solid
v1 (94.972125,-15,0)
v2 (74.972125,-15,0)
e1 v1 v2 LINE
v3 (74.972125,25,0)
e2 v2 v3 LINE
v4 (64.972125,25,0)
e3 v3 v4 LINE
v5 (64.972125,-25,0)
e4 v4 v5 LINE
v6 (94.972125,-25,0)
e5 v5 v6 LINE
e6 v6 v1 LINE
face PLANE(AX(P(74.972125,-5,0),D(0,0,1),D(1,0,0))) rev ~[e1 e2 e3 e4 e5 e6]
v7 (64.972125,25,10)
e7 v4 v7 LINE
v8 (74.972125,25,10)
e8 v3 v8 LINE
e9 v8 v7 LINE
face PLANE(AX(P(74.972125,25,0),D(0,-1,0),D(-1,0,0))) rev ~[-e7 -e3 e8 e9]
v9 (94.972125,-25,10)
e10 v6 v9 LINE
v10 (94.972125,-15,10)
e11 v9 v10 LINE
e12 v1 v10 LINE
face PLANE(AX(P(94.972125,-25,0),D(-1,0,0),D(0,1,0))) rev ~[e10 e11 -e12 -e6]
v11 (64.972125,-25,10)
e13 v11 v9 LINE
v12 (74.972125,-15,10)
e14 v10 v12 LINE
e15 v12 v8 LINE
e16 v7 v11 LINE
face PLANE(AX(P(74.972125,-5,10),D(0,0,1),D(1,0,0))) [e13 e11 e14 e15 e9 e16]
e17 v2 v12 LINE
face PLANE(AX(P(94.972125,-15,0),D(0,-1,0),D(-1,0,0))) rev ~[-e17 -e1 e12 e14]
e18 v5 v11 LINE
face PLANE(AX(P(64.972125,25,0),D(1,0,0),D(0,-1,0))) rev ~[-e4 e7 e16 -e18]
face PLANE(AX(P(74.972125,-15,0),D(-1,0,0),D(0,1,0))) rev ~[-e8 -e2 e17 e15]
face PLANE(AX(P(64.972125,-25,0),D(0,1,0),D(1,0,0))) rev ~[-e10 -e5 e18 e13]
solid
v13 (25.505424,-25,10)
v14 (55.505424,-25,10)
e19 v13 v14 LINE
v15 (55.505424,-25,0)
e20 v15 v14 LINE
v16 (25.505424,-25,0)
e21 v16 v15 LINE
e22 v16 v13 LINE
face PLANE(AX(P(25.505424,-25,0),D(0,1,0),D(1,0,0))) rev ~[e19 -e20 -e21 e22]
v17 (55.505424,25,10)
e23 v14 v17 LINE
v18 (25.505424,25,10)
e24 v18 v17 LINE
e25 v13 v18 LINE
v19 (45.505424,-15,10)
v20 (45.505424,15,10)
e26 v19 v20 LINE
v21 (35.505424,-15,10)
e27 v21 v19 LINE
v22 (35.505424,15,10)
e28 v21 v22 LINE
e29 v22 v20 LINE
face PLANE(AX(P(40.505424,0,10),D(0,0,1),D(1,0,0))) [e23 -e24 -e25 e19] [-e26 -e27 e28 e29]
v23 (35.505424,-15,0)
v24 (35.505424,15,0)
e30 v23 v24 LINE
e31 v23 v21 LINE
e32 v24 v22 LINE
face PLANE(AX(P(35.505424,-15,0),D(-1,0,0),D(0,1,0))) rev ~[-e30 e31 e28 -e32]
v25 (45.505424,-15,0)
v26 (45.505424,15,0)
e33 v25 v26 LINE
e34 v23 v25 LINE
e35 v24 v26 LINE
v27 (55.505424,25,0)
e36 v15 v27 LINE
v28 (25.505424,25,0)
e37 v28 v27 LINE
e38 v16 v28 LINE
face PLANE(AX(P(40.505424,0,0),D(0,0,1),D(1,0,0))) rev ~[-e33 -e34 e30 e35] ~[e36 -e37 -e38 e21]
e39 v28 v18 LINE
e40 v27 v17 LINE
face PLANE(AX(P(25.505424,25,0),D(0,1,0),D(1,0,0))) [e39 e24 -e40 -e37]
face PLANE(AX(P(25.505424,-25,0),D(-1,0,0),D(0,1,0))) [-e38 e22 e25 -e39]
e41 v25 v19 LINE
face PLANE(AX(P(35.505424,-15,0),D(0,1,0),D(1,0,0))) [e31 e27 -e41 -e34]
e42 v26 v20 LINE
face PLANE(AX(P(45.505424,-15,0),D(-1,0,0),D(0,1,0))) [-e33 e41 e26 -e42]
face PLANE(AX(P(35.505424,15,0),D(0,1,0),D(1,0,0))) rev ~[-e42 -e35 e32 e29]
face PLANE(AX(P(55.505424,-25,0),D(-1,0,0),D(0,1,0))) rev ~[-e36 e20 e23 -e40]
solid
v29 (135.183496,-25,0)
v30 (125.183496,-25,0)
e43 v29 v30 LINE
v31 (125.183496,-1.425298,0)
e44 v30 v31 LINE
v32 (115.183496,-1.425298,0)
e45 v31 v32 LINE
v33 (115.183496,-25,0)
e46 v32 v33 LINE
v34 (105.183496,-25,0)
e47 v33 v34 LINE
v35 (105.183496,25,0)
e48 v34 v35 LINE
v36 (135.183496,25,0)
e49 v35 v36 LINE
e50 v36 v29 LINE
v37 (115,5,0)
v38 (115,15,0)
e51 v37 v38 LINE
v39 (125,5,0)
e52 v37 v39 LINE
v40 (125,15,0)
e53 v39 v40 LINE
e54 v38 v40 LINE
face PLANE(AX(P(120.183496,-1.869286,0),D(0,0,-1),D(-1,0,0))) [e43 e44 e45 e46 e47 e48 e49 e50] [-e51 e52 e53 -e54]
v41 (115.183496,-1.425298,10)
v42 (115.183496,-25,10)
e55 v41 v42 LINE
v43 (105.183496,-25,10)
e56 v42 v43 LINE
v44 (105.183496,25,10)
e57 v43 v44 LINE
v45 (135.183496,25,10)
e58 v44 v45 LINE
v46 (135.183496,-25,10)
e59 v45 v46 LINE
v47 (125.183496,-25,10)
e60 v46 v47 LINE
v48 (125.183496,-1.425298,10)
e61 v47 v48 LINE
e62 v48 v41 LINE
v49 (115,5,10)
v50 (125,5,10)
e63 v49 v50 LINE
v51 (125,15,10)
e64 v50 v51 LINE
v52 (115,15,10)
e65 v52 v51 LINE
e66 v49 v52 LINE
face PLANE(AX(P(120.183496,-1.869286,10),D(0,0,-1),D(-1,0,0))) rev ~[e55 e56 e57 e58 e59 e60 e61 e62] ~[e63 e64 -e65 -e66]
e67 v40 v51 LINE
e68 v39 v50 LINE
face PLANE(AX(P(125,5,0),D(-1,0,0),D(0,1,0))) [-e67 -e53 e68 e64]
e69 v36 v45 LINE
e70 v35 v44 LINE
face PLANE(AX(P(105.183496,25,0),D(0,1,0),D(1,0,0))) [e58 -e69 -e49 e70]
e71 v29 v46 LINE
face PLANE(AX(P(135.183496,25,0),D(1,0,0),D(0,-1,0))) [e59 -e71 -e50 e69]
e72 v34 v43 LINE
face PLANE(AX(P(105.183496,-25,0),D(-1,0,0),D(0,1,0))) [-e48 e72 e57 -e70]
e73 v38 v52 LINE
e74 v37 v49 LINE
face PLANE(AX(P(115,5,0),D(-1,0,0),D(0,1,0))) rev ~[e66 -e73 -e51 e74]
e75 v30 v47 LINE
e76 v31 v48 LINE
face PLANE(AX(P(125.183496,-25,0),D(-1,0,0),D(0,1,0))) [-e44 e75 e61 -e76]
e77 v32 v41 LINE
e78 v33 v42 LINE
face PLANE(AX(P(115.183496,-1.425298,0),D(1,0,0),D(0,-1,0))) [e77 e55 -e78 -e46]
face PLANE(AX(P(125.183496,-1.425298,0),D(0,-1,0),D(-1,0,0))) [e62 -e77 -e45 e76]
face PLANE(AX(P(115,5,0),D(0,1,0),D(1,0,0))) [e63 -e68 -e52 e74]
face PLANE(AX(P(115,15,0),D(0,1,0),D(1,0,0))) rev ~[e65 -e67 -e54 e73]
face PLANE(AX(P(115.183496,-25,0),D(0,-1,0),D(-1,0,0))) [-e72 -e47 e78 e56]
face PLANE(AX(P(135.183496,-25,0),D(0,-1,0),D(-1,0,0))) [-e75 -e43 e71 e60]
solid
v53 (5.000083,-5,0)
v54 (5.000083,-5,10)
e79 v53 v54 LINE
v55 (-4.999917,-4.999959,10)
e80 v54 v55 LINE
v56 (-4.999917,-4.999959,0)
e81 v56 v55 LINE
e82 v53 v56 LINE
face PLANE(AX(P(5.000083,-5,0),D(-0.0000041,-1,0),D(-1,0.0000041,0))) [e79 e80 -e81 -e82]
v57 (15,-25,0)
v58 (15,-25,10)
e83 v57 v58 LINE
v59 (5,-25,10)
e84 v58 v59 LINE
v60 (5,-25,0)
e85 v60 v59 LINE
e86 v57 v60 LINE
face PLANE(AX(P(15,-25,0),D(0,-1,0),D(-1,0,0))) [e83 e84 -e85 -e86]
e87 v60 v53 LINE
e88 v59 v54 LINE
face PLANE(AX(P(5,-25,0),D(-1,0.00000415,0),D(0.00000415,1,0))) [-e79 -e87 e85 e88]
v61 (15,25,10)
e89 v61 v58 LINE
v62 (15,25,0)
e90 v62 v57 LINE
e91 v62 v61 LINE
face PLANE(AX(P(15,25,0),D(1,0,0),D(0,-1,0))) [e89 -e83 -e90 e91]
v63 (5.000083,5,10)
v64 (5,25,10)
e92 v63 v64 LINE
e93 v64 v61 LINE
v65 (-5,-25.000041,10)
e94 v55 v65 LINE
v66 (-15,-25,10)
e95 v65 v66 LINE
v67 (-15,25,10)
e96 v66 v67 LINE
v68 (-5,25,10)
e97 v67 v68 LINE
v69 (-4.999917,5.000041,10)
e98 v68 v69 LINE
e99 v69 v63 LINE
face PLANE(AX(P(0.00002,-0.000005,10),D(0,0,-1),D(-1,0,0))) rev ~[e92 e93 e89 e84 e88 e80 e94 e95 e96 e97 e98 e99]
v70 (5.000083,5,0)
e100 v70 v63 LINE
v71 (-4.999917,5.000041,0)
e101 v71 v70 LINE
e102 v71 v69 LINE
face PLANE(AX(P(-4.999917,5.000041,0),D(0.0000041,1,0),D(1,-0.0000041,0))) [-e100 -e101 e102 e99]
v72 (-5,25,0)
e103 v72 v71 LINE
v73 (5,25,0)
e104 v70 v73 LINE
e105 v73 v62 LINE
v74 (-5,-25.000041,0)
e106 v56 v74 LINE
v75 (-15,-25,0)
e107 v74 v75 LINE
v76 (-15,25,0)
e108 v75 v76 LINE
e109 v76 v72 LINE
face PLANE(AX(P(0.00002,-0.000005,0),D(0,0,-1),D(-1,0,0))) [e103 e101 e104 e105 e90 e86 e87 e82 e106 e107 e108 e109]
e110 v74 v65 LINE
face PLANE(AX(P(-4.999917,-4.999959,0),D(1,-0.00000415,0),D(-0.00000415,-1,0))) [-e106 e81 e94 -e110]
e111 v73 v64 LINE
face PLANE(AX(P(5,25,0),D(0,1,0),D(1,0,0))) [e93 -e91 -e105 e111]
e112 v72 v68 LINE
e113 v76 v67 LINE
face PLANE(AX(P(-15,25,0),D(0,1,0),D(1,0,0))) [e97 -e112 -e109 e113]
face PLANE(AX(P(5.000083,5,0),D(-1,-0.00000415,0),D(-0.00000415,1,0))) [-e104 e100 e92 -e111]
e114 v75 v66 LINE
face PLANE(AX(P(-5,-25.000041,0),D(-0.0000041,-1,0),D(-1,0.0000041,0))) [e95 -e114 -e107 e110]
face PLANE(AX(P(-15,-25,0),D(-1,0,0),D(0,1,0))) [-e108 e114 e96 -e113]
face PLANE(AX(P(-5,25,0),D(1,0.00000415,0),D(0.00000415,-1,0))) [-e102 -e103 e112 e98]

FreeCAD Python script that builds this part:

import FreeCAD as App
import Part
import Sketcher

V = App.Vector
Q = App.Units.Quantity

doc = App.newDocument("Part")
body = doc.addObject("PartDesign::Body", "Body")

# Sketch on XY plane
sketch1 = doc.addObject("Sketcher::SketchObject", "Sketch")
body.addObject(sketch1)
sketch1.AttachmentSupport = (doc.XY_Plane, [""])
sketch1.MapMode = "FlatFace"
sketch1.addGeometry(Part.LineSegment(V(-5, 25, 0), V(-15, 25, 0)), False)
sketch1.addGeometry(Part.LineSegment(V(-15, 25, 0), V(-15, -25, 0)), False)
sketch1.addGeometry(Part.LineSegment(V(-15, -25, 0), V(-5, -25, 0)), False)
sketch1.addGeometry(Part.LineSegment(V(-5, -25, 0), V(-5, -5, 0)), False)
sketch1.addGeometry(Part.LineSegment(V(-5, -5, 0), V(5, -5, 0)), False)
sketch1.addGeometry(Part.LineSegment(V(5, -5, 0), V(5, -25, 0)), False)
sketch1.addGeometry(Part.LineSegment(V(5, -25, 0), V(15, -25, 0)), False)
sketch1.addGeometry(Part.LineSegment(V(15, -25, 0), V(15, 25, 0)), False)
sketch1.addGeometry(Part.LineSegment(V(15, 25, 0), V(5, 25, 0)), False)
sketch1.addGeometry(Part.LineSegment(V(5, 25, 0), V(5, 5, 0)), False)
sketch1.addGeometry(Part.LineSegment(V(5, 5, 0), V(-5, 5, 0)), False)
sketch1.addGeometry(Part.LineSegment(V(-5, 5, 0), V(-5, 25, 0)), False)
sketch1.addConstraint(Sketcher.Constraint("Coincident", 0, 2, 1, 1))
sketch1.addConstraint(Sketcher.Constraint("Coincident", 1, 2, 2, 1))
sketch1.addConstraint(Sketcher.Constraint("Coincident", 2, 2, 3, 1))
sketch1.addConstraint(Sketcher.Constraint("Coincident", 3, 2, 4, 1))
sketch1.addConstraint(Sketcher.Constraint("Coincident", 4, 2, 5, 1))
sketch1.addConstraint(Sketcher.Constraint("Coincident", 5, 2, 6, 1))
sketch1.addConstraint(Sketcher.Constraint("Coincident", 6, 2, 7, 1))
sketch1.addConstraint(Sketcher.Constraint("Coincident", 7, 2, 8, 1))
sketch1.addConstraint(Sketcher.Constraint("Coincident", 8, 2, 9, 1))
sketch1.addConstraint(Sketcher.Constraint("Coincident", 9, 2, 10, 1))
sketch1.addConstraint(Sketcher.Constraint("Coincident", 10, 2, 11, 1))
sketch1.addConstraint(Sketcher.Constraint("Coincident", 11, 2, 0, 1))
sketch1.addConstraint(Sketcher.Constraint("Horizontal", 0))
sketch1.addConstraint(Sketcher.Constraint("Vertical", 1))
sketch1.addConstraint(Sketcher.Constraint("Horizontal", 6))
sketch1.addConstraint(Sketcher.Constraint("Vertical", 7))
sketch1.addConstraint(Sketcher.Constraint("Horizontal", 8))
sketch1.addConstraint(Sketcher.Constraint("Symmetric", 0, 2, 6, 2, -1, 1))
sketch1.addConstraint(Sketcher.Constraint("Symmetric", 8, 2, 11, 2, -2))
sketch1.addConstraint(Sketcher.Constraint("Symmetric", 4, 2, 9, 2, -1))
sketch1.addConstraint(Sketcher.Constraint("Perpendicular", 2, 3))
sketch1.addConstraint(Sketcher.Constraint("Perpendicular", 3, 4))
sketch1.addConstraint(Sketcher.Constraint("Perpendicular", 4, 5))
sketch1.addConstraint(Sketcher.Constraint("Perpendicular", 5, 10))
sketch1.addConstraint(Sketcher.Constraint("Parallel", 9, 11))
sketch1.addConstraint(Sketcher.Constraint("Horizontal", 1, 2, 5, 2))
sketch1.addConstraint(Sketcher.Constraint("Vertical", 5, 2, 8, 2))
sketch1.addConstraint(Sketcher.Constraint("Vertical", 3, 2, 10, 2))
sketch1.addConstraint(Sketcher.Constraint("Equal", 2, 4))
sketch1.addConstraint(Sketcher.Constraint("DistanceX", 0, 2, 0, 1, Q("10 mm")))
sketch1.addConstraint(Sketcher.Constraint("DistanceY", 1, 2, 1, 1, Q("50 mm")))
sketch1.addConstraint(Sketcher.Constraint("Distance", 5, Q("20 mm")))
sketch1.addConstraint(Sketcher.Constraint("Distance", 11, Q("19.999959 mm")))
pad1 = doc.addObject("PartDesign::Pad", "Pad")
body.addObject(pad1)
pad1.Profile = sketch1
pad1.Length = 10
body2 = doc.addObject("PartDesign::Body", "Body001")

# Sketch on XY plane
sketch2 = doc.addObject("Sketcher::SketchObject", "Sketch001")
body2.addObject(sketch2)
sketch2.AttachmentSupport = (doc.getObject("XY_Plane001"), [""])
sketch2.MapMode = "FlatFace"
sketch2.addGeometry(Part.LineSegment(V(26, 25, 0), V(26, -25, 0)), False)
sketch2.addGeometry(Part.LineSegment(V(26, -25, 0), V(56, -25, 0)), False)
sketch2.addGeometry(Part.LineSegment(V(56, -25, 0), V(56, 25, 0)), False)
sketch2.addGeometry(Part.LineSegment(V(56, 25, 0), V(26, 25, 0)), False)
sketch2.addGeometry(Part.LineSegment(V(46, -15, 0), V(36, -15, 0)), False)
sketch2.addGeometry(Part.LineSegment(V(36, -15, 0), V(36, 15, 0)), False)
sketch2.addGeometry(Part.LineSegment(V(36, 15, 0), V(46, 15, 0)), False)
sketch2.addGeometry(Part.LineSegment(V(46, 15, 0), V(46, -15, 0)), False)
sketch2.addConstraint(Sketcher.Constraint("Coincident", 0, 2, 1, 1))
sketch2.addConstraint(Sketcher.Constraint("Coincident", 1, 2, 2, 1))
sketch2.addConstraint(Sketcher.Constraint("Coincident", 2, 2, 3, 1))
sketch2.addConstraint(Sketcher.Constraint("Coincident", 3, 2, 0, 1))
sketch2.addConstraint(Sketcher.Constraint("Coincident", 4, 2, 5, 1))
sketch2.addConstraint(Sketcher.Constraint("Coincident", 5, 2, 6, 1))
sketch2.addConstraint(Sketcher.Constraint("Coincident", 6, 2, 7, 1))
sketch2.addConstraint(Sketcher.Constraint("Coincident", 7, 2, 4, 1))
sketch2.addConstraint(Sketcher.Constraint("Vertical", 0))
sketch2.addConstraint(Sketcher.Constraint("Horizontal", 1))
sketch2.addConstraint(Sketcher.Constraint("Vertical", 2))
sketch2.addConstraint(Sketcher.Constraint("Horizontal", 3))
sketch2.addConstraint(Sketcher.Constraint("Horizontal", 4))
sketch2.addConstraint(Sketcher.Constraint("Vertical", 5))
sketch2.addConstraint(Sketcher.Constraint("Horizontal", 6))
sketch2.addConstraint(Sketcher.Constraint("Vertical", 7))
sketch2.addConstraint(Sketcher.Constraint("Equal", 3, 5))
sketch2.addConstraint(Sketcher.Constraint("DistanceX", 1, 1, 1, 2, Q("30 mm")))
sketch2.addConstraint(Sketcher.Constraint("DistanceX", 4, 2, 4, 1, Q("10 mm")))
sketch2.addConstraint(Sketcher.Constraint("DistanceY", 0, 2, 0, 1, Q("50 mm")))
sketch2.addConstraint(Sketcher.Constraint("DistanceY", 0, 2, -1, 1, Q("25 mm")))
sketch2.addConstraint(Sketcher.Constraint("DistanceY", 4, 2, -1, 1, Q("15 mm")))
sketch2.addConstraint(Sketcher.Constraint("DistanceX", 0, 2, 4, 2, Q("10 mm")))
sketch2.addConstraint(Sketcher.Constraint("DistanceX", -1, 1, 0, 2, Q("25.505424 mm")))
pad2 = doc.addObject("PartDesign::Pad", "Pad001")
body2.addObject(pad2)
pad2.Profile = sketch2
pad2.Length = 10
body3 = doc.addObject("PartDesign::Body", "Body002")

# Sketch on XY plane
sketch3 = doc.addObject("Sketcher::SketchObject", "Sketch002")
body3.addObject(sketch3)
sketch3.AttachmentSupport = (doc.getObject("XY_Plane002"), [""])
sketch3.MapMode = "FlatFace"
sketch3.addGeometry(Part.LineSegment(V(65, -25, 0), V(95, -25, 0)), False)
sketch3.addGeometry(Part.LineSegment(V(95, -25, 0), V(95, -15, 0)), False)
sketch3.addGeometry(Part.LineSegment(V(95, -15, 0), V(75, -15, 0)), False)
sketch3.addGeometry(Part.LineSegment(V(75, -15, 0), V(75, 25, 0)), False)
sketch3.addGeometry(Part.LineSegment(V(75, 25, 0), V(65, 25, 0)), False)
sketch3.addGeometry(Part.LineSegment(V(65, 25, 0), V(65, -25, 0)), False)
sketch3.addConstraint(Sketcher.Constraint("Coincident", 0, 2, 1, 1))
sketch3.addConstraint(Sketcher.Constraint("Coincident", 1, 2, 2, 1))
sketch3.addConstraint(Sketcher.Constraint("Coincident", 2, 2, 3, 1))
sketch3.addConstraint(Sketcher.Constraint("Coincident", 3, 2, 4, 1))
sketch3.addConstraint(Sketcher.Constraint("Coincident", 4, 2, 5, 1))
sketch3.addConstraint(Sketcher.Constraint("Coincident", 5, 2, 0, 1))
sketch3.addConstraint(Sketcher.Constraint("Horizontal", 0))
sketch3.addConstraint(Sketcher.Constraint("Vertical", 1))
sketch3.addConstraint(Sketcher.Constraint("Horizontal", 2))
sketch3.addConstraint(Sketcher.Constraint("Vertical", 3))
sketch3.addConstraint(Sketcher.Constraint("Horizontal", 4))
sketch3.addConstraint(Sketcher.Constraint("Vertical", 5))
sketch3.addConstraint(Sketcher.Constraint("Equal", 4, 1))
sketch3.addConstraint(Sketcher.Constraint("DistanceX", 0, 1, 0, 2, Q("30 mm")))
sketch3.addConstraint(Sketcher.Constraint("DistanceX", 2, 2, 2, 1, Q("20 mm")))
sketch3.addConstraint(Sketcher.Constraint("DistanceY", 3, 1, 3, 2, Q("40 mm")))
sketch3.addConstraint(Sketcher.Constraint("DistanceY", 0, 2, -1, 1, Q("25 mm")))
sketch3.addConstraint(Sketcher.Constraint("DistanceX", -1, 1, 0, 2, Q("94.972125 mm")))
pad3 = doc.addObject("PartDesign::Pad", "Pad002")
body3.addObject(pad3)
pad3.Profile = sketch3
pad3.Length = 10
body4 = doc.addObject("PartDesign::Body", "Body003")

# Sketch on XY plane
sketch4 = doc.addObject("Sketcher::SketchObject", "Sketch003")
body4.addObject(sketch4)
sketch4.AttachmentSupport = (doc.getObject("XY_Plane003"), [""])
sketch4.MapMode = "FlatFace"
sketch4.addGeometry(Part.LineSegment(V(105, 25, 0), V(105, -25, 0)), False)
sketch4.addGeometry(Part.LineSegment(V(105, -25, 0), V(115, -25, 0)), False)
sketch4.addGeometry(Part.LineSegment(V(115, -25, 0), V(115, -1, 0)), False)
sketch4.addGeometry(Part.LineSegment(V(115, -1, 0), V(125, -1, 0)), False)
sketch4.addGeometry(Part.LineSegment(V(125, -1, 0), V(125, -25, 0)), False)
sketch4.addGeometry(Part.LineSegment(V(125, -25, 0), V(135, -25, 0)), False)
sketch4.addGeometry(Part.LineSegment(V(135, -25, 0), V(135, 25, 0)), False)
sketch4.addGeometry(Part.LineSegment(V(135, 25, 0), V(105, 25, 0)), False)
sketch4.addGeometry(Part.LineSegment(V(115, 5, 0), V(115, 15, 0)), False)
sketch4.addGeometry(Part.LineSegment(V(115, 15, 0), V(125, 15, 0)), False)
sketch4.addGeometry(Part.LineSegment(V(125, 15, 0), V(125, 5, 0)), False)
sketch4.addGeometry(Part.LineSegment(V(125, 5, 0), V(115, 5, 0)), False)
sketch4.addConstraint(Sketcher.Constraint("Coincident", 0, 2, 1, 1))
sketch4.addConstraint(Sketcher.Constraint("Coincident", 1, 2, 2, 1))
sketch4.addConstraint(Sketcher.Constraint("Coincident", 2, 2, 3, 1))
sketch4.addConstraint(Sketcher.Constraint("Coincident", 3, 2, 4, 1))
sketch4.addConstraint(Sketcher.Constraint("Coincident", 4, 2, 5, 1))
sketch4.addConstraint(Sketcher.Constraint("Coincident", 5, 2, 6, 1))
sketch4.addConstraint(Sketcher.Constraint("Coincident", 6, 2, 7, 1))
sketch4.addConstraint(Sketcher.Constraint("Coincident", 7, 2, 0, 1))
sketch4.addConstraint(Sketcher.Constraint("Coincident", 8, 2, 9, 1))
sketch4.addConstraint(Sketcher.Constraint("Coincident", 9, 2, 10, 1))
sketch4.addConstraint(Sketcher.Constraint("Coincident", 10, 2, 11, 1))
sketch4.addConstraint(Sketcher.Constraint("Coincident", 11, 2, 8, 1))
sketch4.addConstraint(Sketcher.Constraint("Vertical", 0))
sketch4.addConstraint(Sketcher.Constraint("Horizontal", 1))
sketch4.addConstraint(Sketcher.Constraint("Vertical", 2))
sketch4.addConstraint(Sketcher.Constraint("Horizontal", 3))
sketch4.addConstraint(Sketcher.Constraint("Vertical", 4))
sketch4.addConstraint(Sketcher.Constraint("Horizontal", 5))
sketch4.addConstraint(Sketcher.Constraint("Vertical", 6))
sketch4.addConstraint(Sketcher.Constraint("Horizontal", 7))
sketch4.addConstraint(Sketcher.Constraint("Vertical", 8))
sketch4.addConstraint(Sketcher.Constraint("Horizontal", 9))
sketch4.addConstraint(Sketcher.Constraint("Vertical", 10))
sketch4.addConstraint(Sketcher.Constraint("Horizontal", 11))
sketch4.addConstraint(Sketcher.Constraint("Horizontal", 1, 2, 4, 2))
sketch4.addConstraint(Sketcher.Constraint("Equal", 1, 3))
sketch4.addConstraint(Sketcher.Constraint("Equal", 3, 5))
sketch4.addConstraint(Sketcher.Constraint("Equal", 5, 9))
sketch4.addConstraint(Sketcher.Constraint("Equal", 11, 8))
sketch4.addConstraint(Sketcher.Constraint("DistanceX", 1, 1, 1, 2, Q("10 mm")))
sketch4.addConstraint(Sketcher.Constraint("DistanceY", 0, 2, 0, 1, Q("50 mm")))
sketch4.addConstraint(Sketcher.Constraint("DistanceY", 0, 2, -1, 1, Q("25 mm")))
sketch4.addConstraint(Sketcher.Constraint("DistanceX", -1, 1, 8, 2, Q("115 mm")))
sketch4.addConstraint(Sketcher.Constraint("DistanceY", -1, 1, 8, 2, Q("15 mm")))
sketch4.addConstraint(Sketcher.Constraint("DistanceY", 2, 1, 2, 2, Q("23.574702 mm")))
sketch4.addConstraint(Sketcher.Constraint("DistanceX", -1, 1, 0, 2, Q("105.183496 mm")))
pad4 = doc.addObject("PartDesign::Pad", "Pad003")
body4.addObject(pad4)
pad4.Profile = sketch4
pad4.Length = 10

doc.recompute()
